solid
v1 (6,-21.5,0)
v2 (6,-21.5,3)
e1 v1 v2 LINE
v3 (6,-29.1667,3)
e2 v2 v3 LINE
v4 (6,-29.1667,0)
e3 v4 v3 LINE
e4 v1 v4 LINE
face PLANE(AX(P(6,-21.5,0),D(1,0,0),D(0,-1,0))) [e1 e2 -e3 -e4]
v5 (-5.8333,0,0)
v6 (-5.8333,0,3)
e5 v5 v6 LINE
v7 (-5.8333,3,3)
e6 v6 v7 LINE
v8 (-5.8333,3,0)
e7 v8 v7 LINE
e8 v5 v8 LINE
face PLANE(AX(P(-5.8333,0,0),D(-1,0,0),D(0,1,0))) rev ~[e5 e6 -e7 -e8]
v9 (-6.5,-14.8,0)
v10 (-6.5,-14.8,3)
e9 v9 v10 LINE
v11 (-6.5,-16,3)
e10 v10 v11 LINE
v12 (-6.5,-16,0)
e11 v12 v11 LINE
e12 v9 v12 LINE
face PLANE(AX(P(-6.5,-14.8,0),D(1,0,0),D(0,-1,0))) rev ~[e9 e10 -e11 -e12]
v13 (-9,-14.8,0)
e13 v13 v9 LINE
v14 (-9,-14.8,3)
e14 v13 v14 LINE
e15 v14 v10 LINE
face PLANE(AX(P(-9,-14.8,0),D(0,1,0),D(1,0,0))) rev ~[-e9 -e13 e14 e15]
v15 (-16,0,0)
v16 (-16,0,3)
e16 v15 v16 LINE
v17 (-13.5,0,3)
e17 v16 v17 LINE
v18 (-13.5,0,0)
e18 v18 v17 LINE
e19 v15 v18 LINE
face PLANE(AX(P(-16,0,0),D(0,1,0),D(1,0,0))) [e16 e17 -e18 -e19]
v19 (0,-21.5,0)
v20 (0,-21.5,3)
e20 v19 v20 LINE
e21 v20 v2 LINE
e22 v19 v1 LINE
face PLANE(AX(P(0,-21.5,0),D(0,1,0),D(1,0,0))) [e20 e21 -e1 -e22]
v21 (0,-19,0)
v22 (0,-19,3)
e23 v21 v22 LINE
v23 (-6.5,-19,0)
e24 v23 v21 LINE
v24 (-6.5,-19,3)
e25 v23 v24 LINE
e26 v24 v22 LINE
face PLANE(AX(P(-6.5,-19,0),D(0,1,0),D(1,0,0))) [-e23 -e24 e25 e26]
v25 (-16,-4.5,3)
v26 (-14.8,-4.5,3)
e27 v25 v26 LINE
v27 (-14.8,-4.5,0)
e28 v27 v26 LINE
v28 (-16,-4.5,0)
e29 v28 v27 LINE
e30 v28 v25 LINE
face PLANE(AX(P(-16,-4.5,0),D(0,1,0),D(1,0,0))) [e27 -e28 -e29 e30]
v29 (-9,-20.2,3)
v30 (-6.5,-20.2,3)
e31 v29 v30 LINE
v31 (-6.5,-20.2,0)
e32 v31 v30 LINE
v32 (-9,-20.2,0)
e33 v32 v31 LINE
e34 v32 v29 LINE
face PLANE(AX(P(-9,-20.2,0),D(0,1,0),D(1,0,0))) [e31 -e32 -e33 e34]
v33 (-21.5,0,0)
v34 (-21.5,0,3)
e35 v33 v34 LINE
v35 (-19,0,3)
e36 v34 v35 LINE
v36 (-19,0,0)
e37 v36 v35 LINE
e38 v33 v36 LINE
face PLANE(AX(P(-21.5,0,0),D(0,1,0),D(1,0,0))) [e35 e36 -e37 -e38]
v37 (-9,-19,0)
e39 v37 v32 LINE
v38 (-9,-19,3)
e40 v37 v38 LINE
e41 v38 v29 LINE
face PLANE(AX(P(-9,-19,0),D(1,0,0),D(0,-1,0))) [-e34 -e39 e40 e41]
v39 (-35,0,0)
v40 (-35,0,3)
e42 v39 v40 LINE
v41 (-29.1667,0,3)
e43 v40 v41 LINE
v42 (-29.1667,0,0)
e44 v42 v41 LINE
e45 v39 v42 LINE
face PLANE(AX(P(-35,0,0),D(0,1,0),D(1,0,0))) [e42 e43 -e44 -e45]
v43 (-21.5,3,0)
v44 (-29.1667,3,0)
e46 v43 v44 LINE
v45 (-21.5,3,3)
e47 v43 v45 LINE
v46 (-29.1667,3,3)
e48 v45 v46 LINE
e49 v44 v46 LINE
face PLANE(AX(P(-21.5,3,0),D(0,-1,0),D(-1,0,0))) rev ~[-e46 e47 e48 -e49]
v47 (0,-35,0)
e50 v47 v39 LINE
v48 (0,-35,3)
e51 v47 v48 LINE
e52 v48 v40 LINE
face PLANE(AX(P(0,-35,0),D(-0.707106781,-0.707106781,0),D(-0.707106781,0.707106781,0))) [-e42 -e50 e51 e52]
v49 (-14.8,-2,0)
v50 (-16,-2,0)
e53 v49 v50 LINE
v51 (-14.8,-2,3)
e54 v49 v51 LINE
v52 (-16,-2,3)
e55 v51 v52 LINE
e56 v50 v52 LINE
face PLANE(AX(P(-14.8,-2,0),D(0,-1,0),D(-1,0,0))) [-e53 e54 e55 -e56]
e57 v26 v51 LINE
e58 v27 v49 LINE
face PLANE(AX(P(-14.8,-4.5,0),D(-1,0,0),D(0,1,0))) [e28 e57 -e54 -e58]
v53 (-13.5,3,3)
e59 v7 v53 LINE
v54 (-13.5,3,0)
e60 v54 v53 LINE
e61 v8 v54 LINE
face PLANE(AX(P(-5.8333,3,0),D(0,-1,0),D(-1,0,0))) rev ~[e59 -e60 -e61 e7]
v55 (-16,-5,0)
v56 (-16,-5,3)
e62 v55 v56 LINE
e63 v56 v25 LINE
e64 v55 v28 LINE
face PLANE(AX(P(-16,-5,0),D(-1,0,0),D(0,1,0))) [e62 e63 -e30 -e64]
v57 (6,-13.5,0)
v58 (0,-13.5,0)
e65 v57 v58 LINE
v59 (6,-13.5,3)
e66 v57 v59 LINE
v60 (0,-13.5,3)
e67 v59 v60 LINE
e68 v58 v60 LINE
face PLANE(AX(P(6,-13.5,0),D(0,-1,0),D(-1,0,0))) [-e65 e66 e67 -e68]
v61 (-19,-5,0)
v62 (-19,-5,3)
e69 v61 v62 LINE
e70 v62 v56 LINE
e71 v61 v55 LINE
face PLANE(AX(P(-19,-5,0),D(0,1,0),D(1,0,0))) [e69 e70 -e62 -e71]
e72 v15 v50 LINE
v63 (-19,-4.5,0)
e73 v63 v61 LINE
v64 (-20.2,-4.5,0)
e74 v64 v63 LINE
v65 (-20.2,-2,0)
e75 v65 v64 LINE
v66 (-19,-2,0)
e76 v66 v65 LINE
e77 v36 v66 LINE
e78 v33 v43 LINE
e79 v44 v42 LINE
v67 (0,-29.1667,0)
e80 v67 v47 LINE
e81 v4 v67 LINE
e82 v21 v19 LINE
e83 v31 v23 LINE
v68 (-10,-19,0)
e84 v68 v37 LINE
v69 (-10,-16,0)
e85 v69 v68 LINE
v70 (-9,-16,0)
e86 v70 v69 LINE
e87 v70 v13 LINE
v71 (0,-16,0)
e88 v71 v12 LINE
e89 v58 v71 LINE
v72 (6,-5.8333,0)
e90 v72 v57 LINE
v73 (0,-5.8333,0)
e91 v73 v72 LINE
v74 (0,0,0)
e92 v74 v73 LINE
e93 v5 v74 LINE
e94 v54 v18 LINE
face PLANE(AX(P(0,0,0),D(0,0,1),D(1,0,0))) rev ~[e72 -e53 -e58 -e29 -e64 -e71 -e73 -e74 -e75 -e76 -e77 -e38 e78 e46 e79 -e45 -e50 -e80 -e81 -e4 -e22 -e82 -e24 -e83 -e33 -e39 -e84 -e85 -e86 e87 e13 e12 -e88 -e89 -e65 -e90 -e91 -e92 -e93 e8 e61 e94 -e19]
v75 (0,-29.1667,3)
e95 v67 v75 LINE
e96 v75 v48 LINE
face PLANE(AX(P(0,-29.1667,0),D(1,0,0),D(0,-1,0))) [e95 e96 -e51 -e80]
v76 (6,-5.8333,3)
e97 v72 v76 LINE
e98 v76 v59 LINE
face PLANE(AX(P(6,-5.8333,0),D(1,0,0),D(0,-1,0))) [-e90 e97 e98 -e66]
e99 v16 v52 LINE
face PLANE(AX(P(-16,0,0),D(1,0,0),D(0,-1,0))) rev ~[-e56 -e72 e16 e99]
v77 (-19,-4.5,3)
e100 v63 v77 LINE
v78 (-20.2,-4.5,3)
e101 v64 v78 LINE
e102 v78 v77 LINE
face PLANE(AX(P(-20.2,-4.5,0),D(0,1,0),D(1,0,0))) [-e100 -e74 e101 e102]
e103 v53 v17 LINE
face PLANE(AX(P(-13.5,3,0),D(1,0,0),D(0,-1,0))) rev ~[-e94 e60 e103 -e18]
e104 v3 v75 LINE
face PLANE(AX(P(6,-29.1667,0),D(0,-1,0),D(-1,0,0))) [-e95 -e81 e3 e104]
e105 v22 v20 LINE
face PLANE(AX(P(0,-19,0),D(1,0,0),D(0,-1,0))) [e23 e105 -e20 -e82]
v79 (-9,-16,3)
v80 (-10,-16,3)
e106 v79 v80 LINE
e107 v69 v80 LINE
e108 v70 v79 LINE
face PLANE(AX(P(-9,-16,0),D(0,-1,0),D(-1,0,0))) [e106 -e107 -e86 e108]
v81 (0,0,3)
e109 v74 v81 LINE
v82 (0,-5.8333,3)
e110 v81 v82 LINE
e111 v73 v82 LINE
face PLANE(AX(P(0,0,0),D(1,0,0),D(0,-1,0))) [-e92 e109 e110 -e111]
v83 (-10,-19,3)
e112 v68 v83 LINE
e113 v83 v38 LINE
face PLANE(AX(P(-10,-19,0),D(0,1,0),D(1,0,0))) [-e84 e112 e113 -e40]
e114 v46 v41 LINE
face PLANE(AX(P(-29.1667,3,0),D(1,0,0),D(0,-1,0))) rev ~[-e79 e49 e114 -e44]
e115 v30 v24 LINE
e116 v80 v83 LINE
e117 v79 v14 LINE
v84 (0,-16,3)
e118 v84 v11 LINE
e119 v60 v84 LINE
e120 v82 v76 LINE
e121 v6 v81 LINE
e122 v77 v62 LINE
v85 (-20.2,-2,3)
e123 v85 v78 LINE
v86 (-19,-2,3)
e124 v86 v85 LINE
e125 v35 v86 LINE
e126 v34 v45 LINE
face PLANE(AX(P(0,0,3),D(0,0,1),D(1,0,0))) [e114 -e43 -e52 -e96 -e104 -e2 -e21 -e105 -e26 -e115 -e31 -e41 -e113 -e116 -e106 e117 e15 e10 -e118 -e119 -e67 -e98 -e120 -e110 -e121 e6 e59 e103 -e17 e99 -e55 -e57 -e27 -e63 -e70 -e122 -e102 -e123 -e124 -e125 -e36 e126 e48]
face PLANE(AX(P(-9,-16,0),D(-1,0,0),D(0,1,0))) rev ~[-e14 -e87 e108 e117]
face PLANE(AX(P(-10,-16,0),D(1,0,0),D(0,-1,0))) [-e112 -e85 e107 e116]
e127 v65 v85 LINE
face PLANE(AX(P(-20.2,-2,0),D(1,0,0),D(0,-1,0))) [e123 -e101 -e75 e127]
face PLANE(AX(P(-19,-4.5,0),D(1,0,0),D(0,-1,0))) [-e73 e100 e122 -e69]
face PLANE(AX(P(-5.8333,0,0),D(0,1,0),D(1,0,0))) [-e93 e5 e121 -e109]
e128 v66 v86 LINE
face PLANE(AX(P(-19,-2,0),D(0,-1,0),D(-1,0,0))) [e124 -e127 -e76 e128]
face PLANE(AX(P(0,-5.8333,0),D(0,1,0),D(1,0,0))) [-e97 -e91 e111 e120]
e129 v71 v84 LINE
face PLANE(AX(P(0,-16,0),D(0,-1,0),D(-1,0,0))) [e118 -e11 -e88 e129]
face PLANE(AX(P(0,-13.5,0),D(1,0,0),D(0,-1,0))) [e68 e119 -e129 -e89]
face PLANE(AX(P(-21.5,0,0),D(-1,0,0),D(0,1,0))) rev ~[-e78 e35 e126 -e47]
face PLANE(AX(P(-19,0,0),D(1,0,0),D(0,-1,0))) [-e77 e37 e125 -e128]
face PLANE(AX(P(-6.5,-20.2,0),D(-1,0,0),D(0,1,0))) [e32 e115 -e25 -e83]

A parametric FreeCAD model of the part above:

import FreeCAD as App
import Part
import Sketcher

V = App.Vector

doc = App.newDocument("Part")
body = doc.addObject("PartDesign::Body", "Body")

# Sketch on XY plane
sketch1 = body.newObject("Sketcher::SketchObject", "Sketch")
sketch1.AttachmentSupport = (doc.getObject("XY_Plane"), [""])
sketch1.MapMode = "FlatFace"
sketch1.addGeometry(Part.LineSegment(V(0, -5.8, 0), V(0, 0, 0)), False)
sketch1.addGeometry(Part.LineSegment(V(0, 0, 0), V(-5.8, 0, 0)), False)
sketch1.addGeometry(Part.LineSegment(V(-5.8, 0, 0), V(-5.8, 3, 0)), False)
sketch1.addGeometry(Part.LineSegment(V(-5.8, 3, 0), V(-13.5, 3, 0)), False)
sketch1.addGeometry(Part.LineSegment(V(-13.5, 3, 0), V(-13.5, 0, 0)), False)
sketch1.addGeometry(Part.LineSegment(V(-13.5, 0, 0), V(-16, 0, 0)), False)
sketch1.addGeometry(Part.LineSegment(V(-16, 0, 0), V(-16, -2, 0)), False)
sketch1.addGeometry(Part.LineSegment(V(-16, -2, 0), V(-14.8, -2, 0)), False)
sketch1.addGeometry(Part.LineSegment(V(-14.8, -2, 0), V(-14.8, -4.5, 0)), False)
sketch1.addGeometry(Part.LineSegment(V(-14.8, -4.5, 0), V(-16, -4.5, 0)), False)
sketch1.addGeometry(Part.LineSegment(V(-16, -4.5, 0), V(-16, -5, 0)), False)
sketch1.addGeometry(Part.LineSegment(V(-16, -5, 0), V(-19, -5, 0)), False)
sketch1.addGeometry(Part.LineSegment(V(-19, -5, 0), V(-19, -4.5, 0)), False)
sketch1.addGeometry(Part.LineSegment(V(-19, -4.5, 0), V(-20.2, -4.5, 0)), False)
sketch1.addGeometry(Part.LineSegment(V(-20.2, -4.5, 0), V(-20.2, -2, 0)), False)
sketch1.addGeometry(Part.LineSegment(V(-20.2, -2, 0), V(-19, -2, 0)), False)
sketch1.addGeometry(Part.LineSegment(V(-19, -2, 0), V(-19, 0, 0)), False)
sketch1.addGeometry(Part.LineSegment(V(-19, 0, 0), V(-21.5, 0, 0)), False)
sketch1.addGeometry(Part.LineSegment(V(-21.5, 0, 0), V(-21.5, 3, 0)), False)
sketch1.addGeometry(Part.LineSegment(V(-21.5, 3, 0), V(-29.2, 3, 0)), False)
sketch1.addGeometry(Part.LineSegment(V(-29.2, 3, 0), V(-29.2, 0, 0)), False)
sketch1.addGeometry(Part.LineSegment(V(-29.2, 0, 0), V(-35, 0, 0)), False)
sketch1.addGeometry(Part.LineSegment(V(-35, 0, 0), V(0, -35, 0)), False)
sketch1.addGeometry(Part.LineSegment(V(0, -35, 0), V(0, -29.2, 0)), False)
sketch1.addGeometry(Part.LineSegment(V(0, -29.2, 0), V(6, -29.2, 0)), False)
sketch1.addGeometry(Part.LineSegment(V(6, -29.2, 0), V(6, -21.5, 0)), False)
sketch1.addGeometry(Part.LineSegment(V(6, -21.5, 0), V(0, -21.5, 0)), False)
sketch1.addGeometry(Part.LineSegment(V(0, -21.5, 0), V(0, -19, 0)), False)
sketch1.addGeometry(Part.LineSegment(V(0, -19, 0), V(-6.5, -19, 0)), False)
sketch1.addGeometry(Part.LineSegment(V(-6.5, -19, 0), V(-6.5, -20.2, 0)), False)
sketch1.addGeometry(Part.LineSegment(V(-6.5, -20.2, 0), V(-9, -20.2, 0)), False)
sketch1.addGeometry(Part.LineSegment(V(-9, -20.2, 0), V(-9, -19, 0)), False)
sketch1.addGeometry(Part.LineSegment(V(-9, -19, 0), V(-10, -19, 0)), False)
sketch1.addGeometry(Part.LineSegment(V(-10, -19, 0), V(-10, -16, 0)), False)
sketch1.addGeometry(Part.LineSegment(V(-10, -16, 0), V(-9, -16, 0)), False)
sketch1.addGeometry(Part.LineSegment(V(-9, -16, 0), V(-9, -14.8, 0)), False)
sketch1.addGeometry(Part.LineSegment(V(-9, -14.8, 0), V(-6.5, -14.8, 0)), False)
sketch1.addGeometry(Part.LineSegment(V(-6.5, -14.8, 0), V(-6.5, -16, 0)), False)
sketch1.addGeometry(Part.LineSegment(V(-6.5, -16, 0), V(0, -16, 0)), False)
sketch1.addGeometry(Part.LineSegment(V(0, -16, 0), V(0, -13.5, 0)), False)
sketch1.addGeometry(Part.LineSegment(V(0, -13.5, 0), V(6, -13.5, 0)), False)
sketch1.addGeometry(Part.LineSegment(V(6, -13.5, 0), V(6, -5.8, 0)), False)
sketch1.addGeometry(Part.LineSegment(V(6, -5.8, 0), V(0, -5.8, 0)), False)
sketch1.addConstraint(Sketcher.Constraint("Coincident", 0, 2, 1, 1))
sketch1.addConstraint(Sketcher.Constraint("Coincident", 1, 2, 2, 1))
sketch1.addConstraint(Sketcher.Constraint("Coincident", 2, 2, 3, 1))
sketch1.addConstraint(Sketcher.Constraint("Coincident", 3, 2, 4, 1))
sketch1.addConstraint(Sketcher.Constraint("Coincident", 4, 2, 5, 1))
sketch1.addConstraint(Sketcher.Constraint("Coincident", 5, 2, 6, 1))
sketch1.addConstraint(Sketcher.Constraint("Coincident", 6, 2, 7, 1))
sketch1.addConstraint(Sketcher.Constraint("Coincident", 7, 2, 8, 1))
sketch1.addConstraint(Sketcher.Constraint("Coincident", 8, 2, 9, 1))
sketch1.addConstraint(Sketcher.Constraint("Coincident", 9, 2, 10, 1))
sketch1.addConstraint(Sketcher.Constraint("Coincident", 10, 2, 11, 1))
sketch1.addConstraint(Sketcher.Constraint("Coincident", 11, 2, 12, 1))
sketch1.addConstraint(Sketcher.Constraint("Coincident", 12, 2, 13, 1))
sketch1.addConstraint(Sketcher.Constraint("Coincident", 13, 2, 14, 1))
sketch1.addConstraint(Sketcher.Constraint("Coincident", 14, 2, 15, 1))
sketch1.addConstraint(Sketcher.Constraint("Coincident", 15, 2, 16, 1))
sketch1.addConstraint(Sketcher.Constraint("Coincident", 16, 2, 17, 1))
sketch1.addConstraint(Sketcher.Constraint("Coincident", 17, 2, 18, 1))
sketch1.addConstraint(Sketcher.Constraint("Coincident", 18, 2, 19, 1))
sketch1.addConstraint(Sketcher.Constraint("Coincident", 19, 2, 20, 1))
sketch1.addConstraint(Sketcher.Constraint("Coincident", 20, 2, 21, 1))
sketch1.addConstraint(Sketcher.Constraint("Coincident", 21, 2, 22, 1))
sketch1.addConstraint(Sketcher.Constraint("Coincident", 22, 2, 23, 1))
sketch1.addConstraint(Sketcher.Constraint("Coincident", 23, 2, 24, 1))
sketch1.addConstraint(Sketcher.Constraint("Coincident", 24, 2, 25, 1))
sketch1.addConstraint(Sketcher.Constraint("Coincident", 25, 2, 26, 1))
sketch1.addConstraint(Sketcher.Constraint("Coincident", 26, 2, 27, 1))
sketch1.addConstraint(Sketcher.Constraint("Coincident", 27, 2, 28, 1))
sketch1.addConstraint(Sketcher.Constraint("Coincident", 28, 2, 29, 1))
sketch1.addConstraint(Sketcher.Constraint("Coincident", 29, 2, 30, 1))
sketch1.addConstraint(Sketcher.Constraint("Coincident", 30, 2, 31, 1))
sketch1.addConstraint(Sketcher.Constraint("Coincident", 31, 2, 32, 1))
sketch1.addConstraint(Sketcher.Constraint("Coincident", 32, 2, 33, 1))
sketch1.addConstraint(Sketcher.Constraint("Coincident", 33, 2, 34, 1))
sketch1.addConstraint(Sketcher.Constraint("Coincident", 34, 2, 35, 1))
sketch1.addConstraint(Sketcher.Constraint("Coincident", 35, 2, 36, 1))
sketch1.addConstraint(Sketcher.Constraint("Coincident", 36, 2, 37, 1))
sketch1.addConstraint(Sketcher.Constraint("Coincident", 37, 2, 38, 1))
sketch1.addConstraint(Sketcher.Constraint("Coincident", 38, 2, 39, 1))
sketch1.addConstraint(Sketcher.Constraint("Coincident", 39, 2, 40, 1))
sketch1.addConstraint(Sketcher.Constraint("Coincident", 40, 2, 41, 1))
sketch1.addConstraint(Sketcher.Constraint("Coincident", 41, 2, 42, 1))
sketch1.addConstraint(Sketcher.Constraint("Coincident", 42, 2, 0, 1))
sketch1.addConstraint(Sketcher.Constraint("Vertical", 0))
sketch1.addConstraint(Sketcher.Constraint("Horizontal", 1))
sketch1.addConstraint(Sketcher.Constraint("Vertical", 2))
sketch1.addConstraint(Sketcher.Constraint("Horizontal", 3))
sketch1.addConstraint(Sketcher.Constraint("Vertical", 4))
sketch1.addConstraint(Sketcher.Constraint("Horizontal", 5))
sketch1.addConstraint(Sketcher.Constraint("Vertical", 6))
sketch1.addConstraint(Sketcher.Constraint("Horizontal", 7))
sketch1.addConstraint(Sketcher.Constraint("Vertical", 8))
sketch1.addConstraint(Sketcher.Constraint("Horizontal", 9))
sketch1.addConstraint(Sketcher.Constraint("Vertical", 10))
sketch1.addConstraint(Sketcher.Constraint("Horizontal", 11))
sketch1.addConstraint(Sketcher.Constraint("Vertical", 12))
sketch1.addConstraint(Sketcher.Constraint("Horizontal", 13))
sketch1.addConstraint(Sketcher.Constraint("Vertical", 14))
sketch1.addConstraint(Sketcher.Constraint("Horizontal", 15))
sketch1.addConstraint(Sketcher.Constraint("Vertical", 16))
sketch1.addConstraint(Sketcher.Constraint("Horizontal", 17))
sketch1.addConstraint(Sketcher.Constraint("Vertical", 18))
sketch1.addConstraint(Sketcher.Constraint("Horizontal", 19))
sketch1.addConstraint(Sketcher.Constraint("Vertical", 20))
sketch1.addConstraint(Sketcher.Constraint("Horizontal", 21))
sketch1.addConstraint(Sketcher.Constraint("Vertical", 23))
sketch1.addConstraint(Sketcher.Constraint("Horizontal", 24))
sketch1.addConstraint(Sketcher.Constraint("Vertical", 25))
sketch1.addConstraint(Sketcher.Constraint("Horizontal", 26))
sketch1.addConstraint(Sketcher.Constraint("Vertical", 27))
sketch1.addConstraint(Sketcher.Constraint("Horizontal", 28))
sketch1.addConstraint(Sketcher.Constraint("Vertical", 29))
sketch1.addConstraint(Sketcher.Constraint("Horizontal", 30))
sketch1.addConstraint(Sketcher.Constraint("Vertical", 31))
sketch1.addConstraint(Sketcher.Constraint("Horizontal", 32))
sketch1.addConstraint(Sketcher.Constraint("Vertical", 33))
sketch1.addConstraint(Sketcher.Constraint("Horizontal", 34))
sketch1.addConstraint(Sketcher.Constraint("Vertical", 35))
sketch1.addConstraint(Sketcher.Constraint("Horizontal", 36))
sketch1.addConstraint(Sketcher.Constraint("Vertical", 37))
sketch1.addConstraint(Sketcher.Constraint("Horizontal", 38))
sketch1.addConstraint(Sketcher.Constraint("Vertical", 39))
sketch1.addConstraint(Sketcher.Constraint("Horizontal", 40))
sketch1.addConstraint(Sketcher.Constraint("Vertical", 41))
sketch1.addConstraint(Sketcher.Constraint("Horizontal", 42))
sketch1.addConstraint(Sketcher.Constraint("Coincident", 0, 2, -1, 1))
sketch1.addConstraint(Sketcher.Constraint("PointOnObject", 4, 2, -1))
sketch1.addConstraint(Sketcher.Constraint("PointOnObject", 16, 2, -1))
sketch1.addConstraint(Sketcher.Constraint("PointOnObject", 20, 2, -1))
sketch1.addConstraint(Sketcher.Constraint("PointOnObject", 22, 2, -2))
sketch1.addConstraint(Sketcher.Constraint("PointOnObject", 26, 2, -2))
sketch1.addConstraint(Sketcher.Constraint("PointOnObject", 38, 2, -2))
sketch1.addConstraint(Sketcher.Constraint("Horizontal", 9, 2, 12, 2))
sketch1.addConstraint(Sketcher.Constraint("Horizontal", 7, 2, 14, 2))
sketch1.addConstraint(Sketcher.Constraint("Horizontal", 3, 2, 18, 2))
sketch1.addConstraint(Sketcher.Constraint("Horizontal", 28, 2, 31, 2))
sketch1.addConstraint(Sketcher.Constraint("Horizontal", 34, 2, 37, 2))
sketch1.addConstraint(Sketcher.Constraint("Vertical", 6, 2, 9, 2))
sketch1.addConstraint(Sketcher.Constraint("Vertical", 12, 2, 15, 2))
sketch1.addConstraint(Sketcher.Constraint("Vertical", 31, 2, 34, 2))
sketch1.addConstraint(Sketcher.Constraint("Vertical", 29, 2, 36, 2))
sketch1.addConstraint(Sketcher.Constraint("Vertical", 25, 2, 40, 2))
sketch1.addConstraint(Sketcher.Constraint("Equal", 9, 13))
sketch1.addConstraint(Sketcher.Constraint("Equal", 5, 17))
sketch1.addConstraint(Sketcher.Constraint("Equal", 3, 19))
sketch1.addConstraint(Sketcher.Constraint("Equal", 1, 21))
sketch1.addConstraint(Sketcher.Constraint("Equal", 17, 30))
sketch1.addConstraint(Sketcher.Constraint("Equal", 21, 0))
sketch1.addConstraint(Sketcher.Constraint("Equal", 11, 2))
sketch1.addConstraint(Sketcher.Constraint("Equal", 36, 8))
sketch1.addConstraint(Sketcher.Constraint("Equal", 0, 23))
sketch1.addConstraint(Sketcher.Constraint("Equal", 19, 25))
sketch1.addConstraint(Sketcher.Constraint("Equal", 14, 27))
sketch1.addConstraint(Sketcher.Constraint("Equal", 15, 29))
sketch1.addConstraint(Sketcher.Constraint("Equal", 20, 33))
sketch1.addConstraint(Sketcher.Constraint("Equal", 31, 35))
sketch1.addConstraint(Sketcher.Constraint("Equal", 27, 39))
sketch1.addConstraint(Sketcher.Constraint("Equal", 25, 41))
sketch1.addConstraint(Sketcher.Constraint("DistanceX", 11, 2, 11, 1, 3.0))
sketch1.addConstraint(Sketcher.Constraint("DistanceX", 24, 1, 24, 2, 6.0))
sketch1.addConstraint(Sketcher.Constraint("DistanceX", 32, 2, 32, 1, 1.0))
sketch1.addConstraint(Sketcher.Constraint("DistanceX", 5, 2, 5, 1, 2.5))
sketch1.addConstraint(Sketcher.Constraint("DistanceX", 5, 2, -1, 1, 16.0))
sketch1.addConstraint(Sketcher.Constraint("DistanceY", 10, 2, -1, 1, 5.0))
sketch1.addConstraint(Sketcher.Constraint("DistanceY", 6, 2, 3, 2, 5.0))
sketch1.addConstraint(Sketcher.Constraint("DistanceX", 7, 1, 7, 2, 1.2))
sketch1.addConstraint(Sketcher.Constraint("DistanceX", 28, 2, 28, 1, 6.5))
sketch1.addConstraint(Sketcher.Constraint("DistanceX", 1, 2, 1, 1, 5.8333))
pad1 = body.newObject("PartDesign::Pad", "Pad")
pad1.Profile = sketch1
pad1.Length = 3

doc.recompute()
